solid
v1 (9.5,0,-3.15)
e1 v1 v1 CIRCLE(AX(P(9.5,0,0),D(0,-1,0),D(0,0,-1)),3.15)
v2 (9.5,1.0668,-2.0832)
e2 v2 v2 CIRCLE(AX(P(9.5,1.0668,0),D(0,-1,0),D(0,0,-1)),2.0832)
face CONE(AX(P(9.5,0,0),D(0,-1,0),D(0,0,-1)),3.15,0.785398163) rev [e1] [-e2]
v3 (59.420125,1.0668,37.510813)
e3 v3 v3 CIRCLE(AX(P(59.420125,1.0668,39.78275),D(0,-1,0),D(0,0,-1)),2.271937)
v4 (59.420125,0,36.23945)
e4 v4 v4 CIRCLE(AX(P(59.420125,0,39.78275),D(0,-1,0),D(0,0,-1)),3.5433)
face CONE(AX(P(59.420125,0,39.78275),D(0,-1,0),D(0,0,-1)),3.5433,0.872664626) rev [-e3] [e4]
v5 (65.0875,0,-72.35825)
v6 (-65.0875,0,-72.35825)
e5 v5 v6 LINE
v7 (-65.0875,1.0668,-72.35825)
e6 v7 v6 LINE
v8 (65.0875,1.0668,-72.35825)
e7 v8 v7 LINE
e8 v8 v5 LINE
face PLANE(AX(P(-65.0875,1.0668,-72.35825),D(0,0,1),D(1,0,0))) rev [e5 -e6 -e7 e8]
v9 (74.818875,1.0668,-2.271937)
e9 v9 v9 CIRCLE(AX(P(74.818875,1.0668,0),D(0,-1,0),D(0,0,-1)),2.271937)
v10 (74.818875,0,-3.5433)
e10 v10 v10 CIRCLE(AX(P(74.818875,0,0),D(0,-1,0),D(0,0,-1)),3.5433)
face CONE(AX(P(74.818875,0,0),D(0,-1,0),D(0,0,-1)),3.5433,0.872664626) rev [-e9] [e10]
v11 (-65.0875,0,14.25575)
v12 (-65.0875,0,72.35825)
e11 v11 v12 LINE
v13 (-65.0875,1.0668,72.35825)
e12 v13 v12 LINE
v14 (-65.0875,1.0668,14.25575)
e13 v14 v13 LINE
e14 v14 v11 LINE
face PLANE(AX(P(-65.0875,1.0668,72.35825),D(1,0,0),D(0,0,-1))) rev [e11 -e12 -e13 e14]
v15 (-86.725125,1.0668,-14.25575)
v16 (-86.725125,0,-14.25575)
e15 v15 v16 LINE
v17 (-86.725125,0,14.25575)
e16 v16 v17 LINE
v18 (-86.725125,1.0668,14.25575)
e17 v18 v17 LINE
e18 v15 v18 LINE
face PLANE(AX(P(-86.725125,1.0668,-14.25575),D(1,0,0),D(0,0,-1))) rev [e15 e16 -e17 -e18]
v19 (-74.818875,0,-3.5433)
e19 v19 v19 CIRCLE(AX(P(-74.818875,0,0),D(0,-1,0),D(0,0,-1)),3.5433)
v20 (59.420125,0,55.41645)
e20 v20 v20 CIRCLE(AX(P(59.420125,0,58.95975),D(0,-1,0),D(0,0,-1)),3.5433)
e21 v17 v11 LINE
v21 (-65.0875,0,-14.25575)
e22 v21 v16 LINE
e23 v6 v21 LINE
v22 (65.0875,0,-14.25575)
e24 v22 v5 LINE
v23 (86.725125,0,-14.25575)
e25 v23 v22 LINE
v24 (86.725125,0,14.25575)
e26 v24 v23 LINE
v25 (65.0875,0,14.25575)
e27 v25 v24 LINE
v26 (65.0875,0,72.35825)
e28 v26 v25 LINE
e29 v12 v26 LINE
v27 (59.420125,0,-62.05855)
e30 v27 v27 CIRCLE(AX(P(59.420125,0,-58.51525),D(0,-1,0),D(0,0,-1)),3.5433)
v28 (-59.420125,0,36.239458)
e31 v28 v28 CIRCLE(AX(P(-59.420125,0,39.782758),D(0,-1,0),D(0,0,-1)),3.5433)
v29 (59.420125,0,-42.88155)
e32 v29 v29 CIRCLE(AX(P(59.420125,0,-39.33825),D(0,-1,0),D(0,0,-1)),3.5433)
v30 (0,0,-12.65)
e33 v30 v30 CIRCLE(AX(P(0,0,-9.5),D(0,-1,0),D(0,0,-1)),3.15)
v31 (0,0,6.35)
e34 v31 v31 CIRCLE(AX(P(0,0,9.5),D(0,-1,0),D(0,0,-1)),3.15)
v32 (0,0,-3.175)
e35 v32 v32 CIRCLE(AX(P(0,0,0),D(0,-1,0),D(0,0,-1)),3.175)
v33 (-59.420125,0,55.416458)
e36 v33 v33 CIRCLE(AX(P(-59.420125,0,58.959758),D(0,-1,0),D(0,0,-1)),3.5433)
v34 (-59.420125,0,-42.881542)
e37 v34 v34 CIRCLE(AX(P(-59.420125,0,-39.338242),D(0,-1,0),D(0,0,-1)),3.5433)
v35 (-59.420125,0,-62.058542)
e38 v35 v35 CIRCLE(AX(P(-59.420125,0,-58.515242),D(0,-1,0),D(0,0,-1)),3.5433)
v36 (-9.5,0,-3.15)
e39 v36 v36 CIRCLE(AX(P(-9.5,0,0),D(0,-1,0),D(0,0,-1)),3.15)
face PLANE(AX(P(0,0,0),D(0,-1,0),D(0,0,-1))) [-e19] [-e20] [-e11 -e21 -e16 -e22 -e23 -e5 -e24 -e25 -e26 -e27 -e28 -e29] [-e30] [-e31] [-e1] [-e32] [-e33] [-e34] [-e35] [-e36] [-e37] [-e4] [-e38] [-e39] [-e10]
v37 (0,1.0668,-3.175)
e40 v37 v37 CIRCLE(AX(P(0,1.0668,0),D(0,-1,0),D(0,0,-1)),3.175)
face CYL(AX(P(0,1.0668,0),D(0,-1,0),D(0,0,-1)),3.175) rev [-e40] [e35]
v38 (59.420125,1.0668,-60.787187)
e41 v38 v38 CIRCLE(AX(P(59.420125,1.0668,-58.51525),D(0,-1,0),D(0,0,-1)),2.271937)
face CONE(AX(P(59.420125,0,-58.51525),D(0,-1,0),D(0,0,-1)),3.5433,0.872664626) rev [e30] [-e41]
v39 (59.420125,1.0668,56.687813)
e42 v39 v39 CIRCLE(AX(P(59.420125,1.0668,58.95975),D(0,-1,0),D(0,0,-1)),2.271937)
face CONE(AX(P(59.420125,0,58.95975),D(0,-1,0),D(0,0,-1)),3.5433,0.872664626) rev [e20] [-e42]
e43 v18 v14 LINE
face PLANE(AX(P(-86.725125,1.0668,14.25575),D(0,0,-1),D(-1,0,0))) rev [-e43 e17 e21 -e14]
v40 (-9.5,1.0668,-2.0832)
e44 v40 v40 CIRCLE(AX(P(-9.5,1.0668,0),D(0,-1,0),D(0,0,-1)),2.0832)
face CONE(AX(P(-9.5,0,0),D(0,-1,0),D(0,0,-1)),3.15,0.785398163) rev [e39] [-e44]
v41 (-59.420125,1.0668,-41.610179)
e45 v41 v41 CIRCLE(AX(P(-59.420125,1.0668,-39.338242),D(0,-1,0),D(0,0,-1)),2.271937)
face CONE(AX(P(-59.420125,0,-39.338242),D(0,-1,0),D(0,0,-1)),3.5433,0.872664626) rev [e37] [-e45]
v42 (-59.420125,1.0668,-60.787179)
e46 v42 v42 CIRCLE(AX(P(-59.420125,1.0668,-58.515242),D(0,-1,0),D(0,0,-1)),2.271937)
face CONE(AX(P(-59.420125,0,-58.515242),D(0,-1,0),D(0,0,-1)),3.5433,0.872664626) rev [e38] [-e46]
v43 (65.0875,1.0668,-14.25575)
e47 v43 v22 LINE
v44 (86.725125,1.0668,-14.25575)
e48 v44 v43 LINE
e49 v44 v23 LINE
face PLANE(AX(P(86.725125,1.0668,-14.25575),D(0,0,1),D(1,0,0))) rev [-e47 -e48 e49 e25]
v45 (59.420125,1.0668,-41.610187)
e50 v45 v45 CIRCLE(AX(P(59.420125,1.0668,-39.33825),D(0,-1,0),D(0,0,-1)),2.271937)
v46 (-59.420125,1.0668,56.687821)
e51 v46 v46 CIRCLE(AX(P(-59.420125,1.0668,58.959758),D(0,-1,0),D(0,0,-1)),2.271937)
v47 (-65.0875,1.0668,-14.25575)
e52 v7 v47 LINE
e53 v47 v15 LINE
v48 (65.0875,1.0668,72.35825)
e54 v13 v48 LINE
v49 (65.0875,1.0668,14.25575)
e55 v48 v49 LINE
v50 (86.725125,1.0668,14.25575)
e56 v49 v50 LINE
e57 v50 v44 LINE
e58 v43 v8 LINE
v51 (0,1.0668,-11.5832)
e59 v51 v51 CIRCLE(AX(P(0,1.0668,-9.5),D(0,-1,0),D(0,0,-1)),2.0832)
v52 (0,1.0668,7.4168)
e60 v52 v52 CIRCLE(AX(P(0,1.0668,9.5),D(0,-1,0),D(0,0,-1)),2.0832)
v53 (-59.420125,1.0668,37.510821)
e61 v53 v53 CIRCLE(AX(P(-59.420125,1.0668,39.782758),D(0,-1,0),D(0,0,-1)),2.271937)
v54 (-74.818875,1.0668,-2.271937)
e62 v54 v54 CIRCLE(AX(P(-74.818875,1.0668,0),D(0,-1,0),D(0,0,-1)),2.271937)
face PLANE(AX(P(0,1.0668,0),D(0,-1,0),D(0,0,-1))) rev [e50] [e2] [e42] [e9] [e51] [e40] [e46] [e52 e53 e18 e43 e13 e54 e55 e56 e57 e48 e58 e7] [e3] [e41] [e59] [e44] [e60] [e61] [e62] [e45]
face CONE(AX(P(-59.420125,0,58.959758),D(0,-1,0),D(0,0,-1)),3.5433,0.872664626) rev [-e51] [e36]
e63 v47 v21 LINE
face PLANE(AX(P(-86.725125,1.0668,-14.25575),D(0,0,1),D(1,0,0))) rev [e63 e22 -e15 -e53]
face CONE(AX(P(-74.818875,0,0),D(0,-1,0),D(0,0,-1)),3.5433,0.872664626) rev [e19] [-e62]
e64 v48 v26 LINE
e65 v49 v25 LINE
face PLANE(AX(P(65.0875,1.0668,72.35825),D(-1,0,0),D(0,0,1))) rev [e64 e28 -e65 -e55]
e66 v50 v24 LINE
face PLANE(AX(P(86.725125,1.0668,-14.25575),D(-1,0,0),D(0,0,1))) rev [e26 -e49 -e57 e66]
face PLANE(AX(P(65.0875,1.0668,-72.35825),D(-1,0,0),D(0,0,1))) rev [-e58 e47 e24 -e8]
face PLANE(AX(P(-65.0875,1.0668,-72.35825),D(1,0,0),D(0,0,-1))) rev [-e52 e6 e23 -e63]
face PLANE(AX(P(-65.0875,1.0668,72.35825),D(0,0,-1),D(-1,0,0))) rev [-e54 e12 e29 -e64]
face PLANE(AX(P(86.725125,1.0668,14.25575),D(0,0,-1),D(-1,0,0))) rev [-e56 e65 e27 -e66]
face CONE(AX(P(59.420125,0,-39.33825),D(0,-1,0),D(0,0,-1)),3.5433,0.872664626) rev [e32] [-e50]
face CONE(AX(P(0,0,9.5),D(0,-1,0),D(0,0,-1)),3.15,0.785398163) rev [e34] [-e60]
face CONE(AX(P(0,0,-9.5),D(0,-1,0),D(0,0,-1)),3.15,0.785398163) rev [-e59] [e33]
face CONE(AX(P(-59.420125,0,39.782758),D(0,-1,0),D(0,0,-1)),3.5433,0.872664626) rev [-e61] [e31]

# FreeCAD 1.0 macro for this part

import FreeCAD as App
import Part
import Sketcher
Q = App.Units.Quantity


def add_polygon(sketch, points):
    """Adds a closed chain of lines whose ends are joined by coincident constraints."""
    first, n = sketch.GeometryCount, len(points)
    for a, b in zip(points, points[1:] + points[:1]):
        sketch.addGeometry(Part.LineSegment(App.Vector(*a, 0), App.Vector(*b, 0)), False)
    for i in range(n):
        sketch.addConstraint(Sketcher.Constraint("Coincident", first + i, 2, first + (i + 1) % n, 1))

doc = App.newDocument("Part")
body = doc.addObject("PartDesign::Body", "Body")

sketch1 = body.newObject("Sketcher::SketchObject", "Sketch")
sketch1.AttachmentSupport = (doc.getObject("XZ_Plane"), [""])
sketch1.MapMode = "FlatFace"
add_polygon(sketch1, [(65, -72), (-65, -72), (-65, -14), (-87, -14), (-87, 14), (-65, 14), (-65, 72), (65, 72), (65, 14), (87, 14), (87, -14), (65, -14)])
sketch1.addConstraint([
    Sketcher.Constraint("Horizontal", 0),
    Sketcher.Constraint("Vertical", 1),
    Sketcher.Constraint("Horizontal", 2),
    Sketcher.Constraint("Vertical", 3),
    Sketcher.Constraint("Horizontal", 4),
    Sketcher.Constraint("Vertical", 5),
    Sketcher.Constraint("Horizontal", 6),
    Sketcher.Constraint("Vertical", 7),
    Sketcher.Constraint("Horizontal", 8),
    Sketcher.Constraint("Vertical", 9),
    Sketcher.Constraint("Horizontal", 10),
    Sketcher.Constraint("Vertical", 11),
    Sketcher.Constraint("Symmetric", 0, 2, 6, 2, -1, 1),
    Sketcher.Constraint("Symmetric", 2, 2, 8, 2, -1, 1),
    Sketcher.Constraint("Symmetric", 4, 2, 10, 2, -1, 1),
    Sketcher.Constraint("Symmetric", 4, 2, 7, 2, -2),
    Sketcher.Constraint("DistanceX", 0, 2, 0, 1, Q("5.125 in")),
    Sketcher.Constraint("DistanceY", 0, 2, 3, 2, Q("3.41 in")),
    Sketcher.Constraint("DistanceY", 1, 1, 1, 2, Q("2.2875 in")),
    Sketcher.Constraint("DistanceX", 2, 2, 2, 1, 21.637625),
])
pad1 = body.newObject("PartDesign::Pad", "Pad")
pad1.Profile = sketch1
pad1.Length = Q("0.042 in")
pad1.Reversed = True

sketch2 = body.newObject("Sketcher::SketchObject", "Sketch001")
sketch2.AttachmentSupport = (doc.getObject("YZ_Plane"), [""])
sketch2.MapMode = "FlatFace"
sketch2.AttachmentOffset = App.Placement(App.Vector(0, 0, -59.420125), App.Rotation())
add_polygon(sketch2, [(1.07, 58.96), (0, 58.96), (0, 55.42), (1.38, 57.06), (1.07, 57.06)])
sketch2.addGeometry(Part.LineSegment(App.Vector(0, 58.96, 0), App.Vector(1.38, 58.96, 0)), True)
sketch2.addConstraint([
    Sketcher.Constraint("Horizontal", 0),
    Sketcher.Constraint("Vertical", 1),
    Sketcher.Constraint("Horizontal", 3),
    Sketcher.Constraint("Vertical", 4),
    Sketcher.Constraint("Horizontal", 5),
    Sketcher.Constraint("Coincident", 5, 1, 0, 2),
    Sketcher.Constraint("PointOnObject", 0, 2, -2),
    Sketcher.Constraint("Vertical", 2, 2, 5, 2),
    Sketcher.Constraint("Angle", 2, Q("50 deg")),
    Sketcher.Constraint("DistanceX", 0, 2, 0, 1, Q("0.042 in")),
    Sketcher.Constraint("DistanceY", 1, 2, 1, 1, Q("0.1395 in")),
    Sketcher.Constraint("DistanceY", 4, 1, 4, 2, 1.89865),
    Sketcher.Constraint("DistanceY", -1, 1, 0, 2, 58.959758),
])
groove = body.newObject("PartDesign::Groove", "Groove")
groove.Profile = sketch2
groove.ReferenceAxis = (sketch2, ["Axis0"])
groove.Angle = 360
doc.recompute()

linearpattern = body.newObject("PartDesign::LinearPattern", "LinearPattern")
linearpattern.Originals = [groove]
linearpattern.Direction = (doc.getObject("Z_Axis"), [""])
linearpattern.Mode = "offset"
linearpattern.Offset = Q("4.625 in")
linearpattern.Occurrences = 2
linearpattern.Reversed = True
body.Tip = linearpattern
doc.recompute()

datumline = body.newObject("PartDesign::Line", "DatumLine")
datumline.Placement = App.Placement(App.Vector(0, 0, 0), App.Rotation(App.Vector(0, 0, 1), App.Vector(0.711180014, 0, -0.703009949)))
linearpattern2 = body.newObject("PartDesign::LinearPattern", "LinearPattern001")
linearpattern2.Originals = [groove]
linearpattern2.Direction = (datumline, [""])
linearpattern2.Mode = "offset"
linearpattern2.Offset = 167.10291
linearpattern2.Occurrences = 2
body.Tip = linearpattern2
doc.recompute()

linearpattern3 = body.newObject("PartDesign::LinearPattern", "LinearPattern002")
linearpattern3.Originals = [groove]
linearpattern3.Direction = (doc.getObject("X_Axis"), [""])
linearpattern3.Mode = "offset"
linearpattern3.Offset = 118.84025
linearpattern3.Occurrences = 2
body.Tip = linearpattern3
doc.recompute()

datumline2 = body.newObject("PartDesign::Line", "DatumLine001")
datumline2.Placement = App.Placement(App.Vector(0, 0, 0), App.Rotation(App.Vector(0, 0, 1), App.Vector(0.987229069, 0, -0.159307138)))
linearpattern4 = body.newObject("PartDesign::LinearPattern", "LinearPattern003")
linearpattern4.Originals = [groove]
linearpattern4.Direction = (datumline2, [""])
linearpattern4.Mode = "offset"
linearpattern4.Offset = 120.377584
linearpattern4.Occurrences = 2
body.Tip = linearpattern4
doc.recompute()

linearpattern5 = body.newObject("PartDesign::LinearPattern", "LinearPattern004")
linearpattern5.Originals = [groove]
linearpattern5.Direction = (doc.getObject("Z_Axis"), [""])
linearpattern5.Mode = "offset"
linearpattern5.Offset = Q("3.87 in")
linearpattern5.Occurrences = 2
linearpattern5.Reversed = True
body.Tip = linearpattern5
doc.recompute()

datumline3 = body.newObject("PartDesign::Line", "DatumLine002")
datumline3.Placement = App.Placement(App.Vector(0, 0, 0), App.Rotation(App.Vector(0, 0, 1), App.Vector(0.770561635, 0, -0.637365489)))
linearpattern6 = body.newObject("PartDesign::LinearPattern", "LinearPattern005")
linearpattern6.Originals = [groove]
linearpattern6.Direction = (datumline3, [""])
linearpattern6.Mode = "offset"
linearpattern6.Offset = 154.225496
linearpattern6.Occurrences = 2
body.Tip = linearpattern6
doc.recompute()

linearpattern7 = body.newObject("PartDesign::LinearPattern", "LinearPattern006")
linearpattern7.Originals = [groove]
linearpattern7.Direction = (doc.getObject("Z_Axis"), [""])
linearpattern7.Mode = "offset"
linearpattern7.Offset = Q("0.755 in")
linearpattern7.Occurrences = 2
linearpattern7.Reversed = True
body.Tip = linearpattern7
doc.recompute()

datumline4 = body.newObject("PartDesign::Line", "DatumLine003")
datumline4.Placement = App.Placement(App.Vector(0, 0, 0), App.Rotation(App.Vector(0, 0, 1), App.Vector(-0.252697582, 0, -0.967545313)))
linearpattern8 = body.newObject("PartDesign::LinearPattern", "LinearPattern007")
linearpattern8.Originals = [groove]
linearpattern8.Direction = (datumline4, [""])
linearpattern8.Mode = "offset"
linearpattern8.Offset = 60.937465
linearpattern8.Occurrences = 2
body.Tip = linearpattern8
doc.recompute()

datumline5 = body.newObject("PartDesign::Line", "DatumLine004")
datumline5.Placement = App.Placement(App.Vector(0, 0, 0), App.Rotation(App.Vector(0, 0, 1), App.Vector(0.915579842, 0, -0.402136237)))
linearpattern9 = body.newObject("PartDesign::LinearPattern", "LinearPattern008")
linearpattern9.Originals = [groove]
linearpattern9.Direction = (datumline5, [""])
linearpattern9.Mode = "offset"
linearpattern9.Offset = 146.616378
linearpattern9.Occurrences = 2
body.Tip = linearpattern9

sketch3 = body.newObject("Sketcher::SketchObject", "Sketch002")
sketch3.AttachmentSupport = (doc.getObject("XZ_Plane"), [""])
sketch3.MapMode = "FlatFace"
sketch3.addGeometry(Part.Circle(App.Vector(0, 0, 0), App.Vector(0, 0, 1), 3.2), False)
sketch3.addConstraint([
    Sketcher.Constraint("Coincident", 0, 3, -1, 1),
    Sketcher.Constraint("Diameter", 0, Q("0.25 in")),
])
pocket1 = body.newObject("PartDesign::Pocket", "Pocket")
pocket1.Profile = sketch3
pocket1.Type = "ThroughAll"

sketch4 = body.newObject("Sketcher::SketchObject", "Sketch003")
sketch4.AttachmentSupport = (doc.getObject("YZ_Plane"), [""])
sketch4.MapMode = "FlatFace"
sketch4.AttachmentOffset = App.Placement(App.Vector(0, 0, 9.5), App.Rotation())
add_polygon(sketch4, [(1.07, 0), (0, 0), (0, -3.15), (1.45, -1.7), (1.07, -1.7)])
sketch4.addConstraint([
    Sketcher.Constraint("Horizontal", 0),
    Sketcher.Constraint("Vertical", 1),
    Sketcher.Constraint("Horizontal", 3),
    Sketcher.Constraint("Vertical", 4),
    Sketcher.Constraint("Coincident", 0, 2, -1, 1),
    Sketcher.Constraint("Angle", 2, Q("45 deg")),
    Sketcher.Constraint("DistanceX", 0, 2, 0, 1, Q("0.042 in")),
    Sketcher.Constraint("DistanceX", 3, 2, 3, 1, 0.3832),
    Sketcher.Constraint("DistanceY", 1, 2, 1, 1, 3.15),
])
groove2 = body.newObject("PartDesign::Groove", "Groove001")
groove2.Profile = sketch4
groove2.ReferenceAxis = (sketch4, ["H_Axis"])
groove2.Angle = 360
doc.recompute()

linearpattern10 = body.newObject("PartDesign::LinearPattern", "LinearPattern009")
linearpattern10.Originals = [groove2]
linearpattern10.Direction = (doc.getObject("X_Axis"), [""])
linearpattern10.Mode = "offset"
linearpattern10.Offset = 19
linearpattern10.Occurrences = 2
linearpattern10.Reversed = True
body.Tip = linearpattern10
doc.recompute()

datumline6 = body.newObject("PartDesign::Line", "DatumLine005")
datumline6.Placement = App.Placement(App.Vector(0, 0, 0), App.Rotation(App.Vector(0, 0, 1), App.Vector(-0.707106781, 0, -0.707106781)))
linearpattern11 = body.newObject("PartDesign::LinearPattern", "LinearPattern010")
linearpattern11.Originals = [groove2]
linearpattern11.Direction = (datumline6, [""])
linearpattern11.Mode = "offset"
linearpattern11.Offset = 13.435029
linearpattern11.Occurrences = 2
body.Tip = linearpattern11
doc.recompute()

datumline7 = body.newObject("PartDesign::Line", "DatumLine006")
datumline7.Placement = App.Placement(App.Vector(0, 0, 0), App.Rotation(App.Vector(0, 0, 1), App.Vector(-0.707106781, 0, 0.707106781)))
linearpattern12 = body.newObject("PartDesign::LinearPattern", "LinearPattern011")
linearpattern12.Originals = [groove2]
linearpattern12.Direction = (datumline7, [""])
linearpattern12.Mode = "offset"
linearpattern12.Offset = 13.435029
linearpattern12.Occurrences = 2
body.Tip = linearpattern12

doc.recompute()
